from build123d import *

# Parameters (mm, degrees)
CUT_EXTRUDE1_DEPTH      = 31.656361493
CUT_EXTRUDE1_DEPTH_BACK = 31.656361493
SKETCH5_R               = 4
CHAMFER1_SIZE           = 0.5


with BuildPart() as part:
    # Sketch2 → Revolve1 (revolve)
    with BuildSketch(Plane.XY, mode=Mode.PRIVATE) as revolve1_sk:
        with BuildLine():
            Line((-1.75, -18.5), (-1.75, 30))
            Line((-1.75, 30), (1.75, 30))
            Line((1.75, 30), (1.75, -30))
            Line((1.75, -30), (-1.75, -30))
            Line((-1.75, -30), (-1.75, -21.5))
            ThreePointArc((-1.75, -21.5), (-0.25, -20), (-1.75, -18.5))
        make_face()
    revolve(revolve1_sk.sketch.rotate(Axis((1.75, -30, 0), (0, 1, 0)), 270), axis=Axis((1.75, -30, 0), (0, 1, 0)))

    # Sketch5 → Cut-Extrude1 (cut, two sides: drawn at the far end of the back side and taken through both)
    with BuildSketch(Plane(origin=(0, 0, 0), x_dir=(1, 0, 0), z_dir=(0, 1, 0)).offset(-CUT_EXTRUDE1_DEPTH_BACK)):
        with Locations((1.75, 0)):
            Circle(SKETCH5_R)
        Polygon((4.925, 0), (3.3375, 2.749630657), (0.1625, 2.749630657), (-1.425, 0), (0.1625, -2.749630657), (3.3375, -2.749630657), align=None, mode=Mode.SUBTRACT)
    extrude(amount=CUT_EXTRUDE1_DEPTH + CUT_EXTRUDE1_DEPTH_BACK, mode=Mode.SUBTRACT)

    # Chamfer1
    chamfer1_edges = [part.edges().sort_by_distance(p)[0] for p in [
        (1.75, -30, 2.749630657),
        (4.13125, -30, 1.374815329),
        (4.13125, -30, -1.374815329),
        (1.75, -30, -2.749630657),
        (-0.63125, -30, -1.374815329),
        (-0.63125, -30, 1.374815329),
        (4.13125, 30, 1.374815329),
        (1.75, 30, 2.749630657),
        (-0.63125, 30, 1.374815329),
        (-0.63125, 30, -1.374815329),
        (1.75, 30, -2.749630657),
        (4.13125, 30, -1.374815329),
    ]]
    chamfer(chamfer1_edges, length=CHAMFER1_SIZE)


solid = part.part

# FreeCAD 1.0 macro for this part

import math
import FreeCAD as App
import Part
import Sketcher

V = App.Vector
Q = App.Units.Quantity


def edges_at(feature, points):
    """Names of the edges that pass closest to the given points."""
    edges = feature.Shape.Edges
    near = lambda p: min(range(len(edges)), key=lambda i: edges[i].distToShape(Part.Vertex(*p))[0])
    return sorted({f"Edge{near(p) + 1}" for p in points})


def add_polygon(sketch, points):
    """Adds a closed chain of lines whose ends are joined by coincident constraints."""
    first, n = sketch.GeometryCount, len(points)
    for a, b in zip(points, points[1:] + points[:1]):
        sketch.addGeometry(Part.LineSegment(App.Vector(*a, 0), App.Vector(*b, 0)), False)
    for i in range(n):
        sketch.addConstraint(Sketcher.Constraint("Coincident", first + i, 2, first + (i + 1) % n, 1))

doc = App.newDocument("Part")
body = doc.addObject("PartDesign::Body", "Body")

# Sketch on XY plane
sketch1 = doc.addObject("Sketcher::SketchObject", "Sketch")
body.addObject(sketch1)
sketch1.AttachmentSupport = (doc.XY_Plane, [""])
sketch1.MapMode = "FlatFace"
sketch1.addGeometry(Part.LineSegment(V(-1.8, 30, 0), V(-1.8, -18.5, 0)), False)
sketch1.addGeometry(Part.ArcOfCircle(Part.Circle(V(-1.8, -20, 0), V(0, 0, 1), 1.5), math.radians(-90), math.radians(90)), False)
sketch1.addGeometry(Part.LineSegment(V(-1.8, -21.5, 0), V(-1.8, -30, 0)), False)
sketch1.addGeometry(Part.LineSegment(V(-1.8, -30, 0), V(1.8, -30, 0)), False)
sketch1.addGeometry(Part.LineSegment(V(1.8, -30, 0), V(1.8, 30, 0)), False)
sketch1.addGeometry(Part.LineSegment(V(1.8, 30, 0), V(-1.8, 30, 0)), False)
sketch1.addGeometry(Part.LineSegment(V(1.8, -30, 0), V(1.8, 30, 0)), True)  # axis
sketch1.addConstraint(Sketcher.Constraint("Coincident", 0, 2, 1, 2))
sketch1.addConstraint(Sketcher.Constraint("Coincident", 1, 1, 2, 1))
sketch1.addConstraint(Sketcher.Constraint("Coincident", 2, 2, 3, 1))
sketch1.addConstraint(Sketcher.Constraint("Coincident", 3, 2, 4, 1))
sketch1.addConstraint(Sketcher.Constraint("Coincident", 4, 2, 5, 1))
sketch1.addConstraint(Sketcher.Constraint("Coincident", 5, 2, 0, 1))
sketch1.addConstraint(Sketcher.Constraint("Vertical", 0))
sketch1.addConstraint(Sketcher.Constraint("Vertical", 2))
sketch1.addConstraint(Sketcher.Constraint("Horizontal", 3))
sketch1.addConstraint(Sketcher.Constraint("Vertical", 4))
sketch1.addConstraint(Sketcher.Constraint("Horizontal", 5))
sketch1.addConstraint(Sketcher.Constraint("Vertical", 6))
sketch1.addConstraint(Sketcher.Constraint("Coincident", 6, 1, 3, 2))
sketch1.addConstraint(Sketcher.Constraint("Symmetric", 2, 2, 4, 2, -1, 1))
sketch1.addConstraint(Sketcher.Constraint("Symmetric", 5, 2, 6, 2, -2))
sketch1.addConstraint(Sketcher.Constraint("Vertical", 1, 3, 0, 2))
sketch1.addConstraint(Sketcher.Constraint("Radius", 1, Q("1.5 mm")))
sketch1.addConstraint(Sketcher.Constraint("DistanceY", 4, 1, 4, 2, Q("60 mm")))
sketch1.addConstraint(Sketcher.Constraint("DistanceX", 3, 1, 3, 2, Q("3.5 mm")))
sketch1.addConstraint(Sketcher.Constraint("DistanceY", 0, 2, 0, 1, Q("48.5 mm")))
revolution = doc.addObject("PartDesign::Revolution", "Revolution")
body.addObject(revolution)
revolution.Profile = sketch1
revolution.ReferenceAxis = (sketch1, ["Axis0"])
revolution.Angle = 360

# Sketch on XZ plane
sketch2 = doc.addObject("Sketcher::SketchObject", "Sketch001")
body.addObject(sketch2)
sketch2.AttachmentSupport = (doc.XZ_Plane, [""])
sketch2.MapMode = "FlatFace"
sketch2.addGeometry(Part.Circle(V(1.8, 0, 0), V(0, 0, 1), 4), False)  # 0
add_polygon(sketch2, [(3.3, -2.7), (4.9, 0), (3.3, 2.7), (0.2, 2.7), (-1.4, 0), (0.2, -2.7)])  # lines 1-6
sketch2.addConstraint(Sketcher.Constraint("Horizontal", 3))
sketch2.addConstraint(Sketcher.Constraint("Horizontal", 6))
sketch2.addConstraint(Sketcher.Constraint("Symmetric", 3, 2, 5, 2, -1))
sketch2.addConstraint(Sketcher.Constraint("PointOnObject", 0, 3, -1))
sketch2.addConstraint(Sketcher.Constraint("PointOnObject", 1, 2, -1))
sketch2.addConstraint(Sketcher.Constraint("PointOnObject", 4, 2, -1))
sketch2.addConstraint(Sketcher.Constraint("Parallel", 1, 4))
sketch2.addConstraint(Sketcher.Constraint("Parallel", 2, 5))
sketch2.addConstraint(Sketcher.Constraint("Diameter", 0, Q("8 mm")))
sketch2.addConstraint(Sketcher.Constraint("Angle", 1, Q("60 deg")))
sketch2.addConstraint(Sketcher.Constraint("DistanceX", 3, 2, 3, 1, Q("3.175 mm")))
sketch2.addConstraint(Sketcher.Constraint("DistanceX", -1, 1, 0, 3, Q("1.75 mm")))
sketch2.addConstraint(Sketcher.Constraint("DistanceX", 4, 2, 1, 2, Q("6.35 mm")))
sketch2.addConstraint(Sketcher.Constraint("DistanceX", -1, 1, 1, 2, Q("4.925 mm")))
pocket1 = doc.addObject("PartDesign::Pocket", "Pocket")
body.addObject(pocket1)
pocket1.Profile = sketch2
pocket1.Type = "ThroughAll"
pocket1.Midplane = True
doc.recompute()

chamfer = doc.addObject("PartDesign::Chamfer", "Chamfer")
body.addObject(chamfer)
chamfer.Base = (pocket1, edges_at(pocket1, [
    (1.75, -30, 2.75),
    (4.131, -30, 1.375),
    (4.131, -30, -1.375),
    (1.75, -30, -2.75),
    (-0.631, -30, -1.375),
    (-0.631, -30, 1.375),
    (4.131, 30, 1.375),
    (1.75, 30, 2.75),
    (-0.631, 30, 1.375),
    (-0.631, 30, -1.375),
    (1.75, 30, -2.75),
    (4.131, 30, -1.375),
]))
chamfer.Size = 0.5

doc.recompute()
